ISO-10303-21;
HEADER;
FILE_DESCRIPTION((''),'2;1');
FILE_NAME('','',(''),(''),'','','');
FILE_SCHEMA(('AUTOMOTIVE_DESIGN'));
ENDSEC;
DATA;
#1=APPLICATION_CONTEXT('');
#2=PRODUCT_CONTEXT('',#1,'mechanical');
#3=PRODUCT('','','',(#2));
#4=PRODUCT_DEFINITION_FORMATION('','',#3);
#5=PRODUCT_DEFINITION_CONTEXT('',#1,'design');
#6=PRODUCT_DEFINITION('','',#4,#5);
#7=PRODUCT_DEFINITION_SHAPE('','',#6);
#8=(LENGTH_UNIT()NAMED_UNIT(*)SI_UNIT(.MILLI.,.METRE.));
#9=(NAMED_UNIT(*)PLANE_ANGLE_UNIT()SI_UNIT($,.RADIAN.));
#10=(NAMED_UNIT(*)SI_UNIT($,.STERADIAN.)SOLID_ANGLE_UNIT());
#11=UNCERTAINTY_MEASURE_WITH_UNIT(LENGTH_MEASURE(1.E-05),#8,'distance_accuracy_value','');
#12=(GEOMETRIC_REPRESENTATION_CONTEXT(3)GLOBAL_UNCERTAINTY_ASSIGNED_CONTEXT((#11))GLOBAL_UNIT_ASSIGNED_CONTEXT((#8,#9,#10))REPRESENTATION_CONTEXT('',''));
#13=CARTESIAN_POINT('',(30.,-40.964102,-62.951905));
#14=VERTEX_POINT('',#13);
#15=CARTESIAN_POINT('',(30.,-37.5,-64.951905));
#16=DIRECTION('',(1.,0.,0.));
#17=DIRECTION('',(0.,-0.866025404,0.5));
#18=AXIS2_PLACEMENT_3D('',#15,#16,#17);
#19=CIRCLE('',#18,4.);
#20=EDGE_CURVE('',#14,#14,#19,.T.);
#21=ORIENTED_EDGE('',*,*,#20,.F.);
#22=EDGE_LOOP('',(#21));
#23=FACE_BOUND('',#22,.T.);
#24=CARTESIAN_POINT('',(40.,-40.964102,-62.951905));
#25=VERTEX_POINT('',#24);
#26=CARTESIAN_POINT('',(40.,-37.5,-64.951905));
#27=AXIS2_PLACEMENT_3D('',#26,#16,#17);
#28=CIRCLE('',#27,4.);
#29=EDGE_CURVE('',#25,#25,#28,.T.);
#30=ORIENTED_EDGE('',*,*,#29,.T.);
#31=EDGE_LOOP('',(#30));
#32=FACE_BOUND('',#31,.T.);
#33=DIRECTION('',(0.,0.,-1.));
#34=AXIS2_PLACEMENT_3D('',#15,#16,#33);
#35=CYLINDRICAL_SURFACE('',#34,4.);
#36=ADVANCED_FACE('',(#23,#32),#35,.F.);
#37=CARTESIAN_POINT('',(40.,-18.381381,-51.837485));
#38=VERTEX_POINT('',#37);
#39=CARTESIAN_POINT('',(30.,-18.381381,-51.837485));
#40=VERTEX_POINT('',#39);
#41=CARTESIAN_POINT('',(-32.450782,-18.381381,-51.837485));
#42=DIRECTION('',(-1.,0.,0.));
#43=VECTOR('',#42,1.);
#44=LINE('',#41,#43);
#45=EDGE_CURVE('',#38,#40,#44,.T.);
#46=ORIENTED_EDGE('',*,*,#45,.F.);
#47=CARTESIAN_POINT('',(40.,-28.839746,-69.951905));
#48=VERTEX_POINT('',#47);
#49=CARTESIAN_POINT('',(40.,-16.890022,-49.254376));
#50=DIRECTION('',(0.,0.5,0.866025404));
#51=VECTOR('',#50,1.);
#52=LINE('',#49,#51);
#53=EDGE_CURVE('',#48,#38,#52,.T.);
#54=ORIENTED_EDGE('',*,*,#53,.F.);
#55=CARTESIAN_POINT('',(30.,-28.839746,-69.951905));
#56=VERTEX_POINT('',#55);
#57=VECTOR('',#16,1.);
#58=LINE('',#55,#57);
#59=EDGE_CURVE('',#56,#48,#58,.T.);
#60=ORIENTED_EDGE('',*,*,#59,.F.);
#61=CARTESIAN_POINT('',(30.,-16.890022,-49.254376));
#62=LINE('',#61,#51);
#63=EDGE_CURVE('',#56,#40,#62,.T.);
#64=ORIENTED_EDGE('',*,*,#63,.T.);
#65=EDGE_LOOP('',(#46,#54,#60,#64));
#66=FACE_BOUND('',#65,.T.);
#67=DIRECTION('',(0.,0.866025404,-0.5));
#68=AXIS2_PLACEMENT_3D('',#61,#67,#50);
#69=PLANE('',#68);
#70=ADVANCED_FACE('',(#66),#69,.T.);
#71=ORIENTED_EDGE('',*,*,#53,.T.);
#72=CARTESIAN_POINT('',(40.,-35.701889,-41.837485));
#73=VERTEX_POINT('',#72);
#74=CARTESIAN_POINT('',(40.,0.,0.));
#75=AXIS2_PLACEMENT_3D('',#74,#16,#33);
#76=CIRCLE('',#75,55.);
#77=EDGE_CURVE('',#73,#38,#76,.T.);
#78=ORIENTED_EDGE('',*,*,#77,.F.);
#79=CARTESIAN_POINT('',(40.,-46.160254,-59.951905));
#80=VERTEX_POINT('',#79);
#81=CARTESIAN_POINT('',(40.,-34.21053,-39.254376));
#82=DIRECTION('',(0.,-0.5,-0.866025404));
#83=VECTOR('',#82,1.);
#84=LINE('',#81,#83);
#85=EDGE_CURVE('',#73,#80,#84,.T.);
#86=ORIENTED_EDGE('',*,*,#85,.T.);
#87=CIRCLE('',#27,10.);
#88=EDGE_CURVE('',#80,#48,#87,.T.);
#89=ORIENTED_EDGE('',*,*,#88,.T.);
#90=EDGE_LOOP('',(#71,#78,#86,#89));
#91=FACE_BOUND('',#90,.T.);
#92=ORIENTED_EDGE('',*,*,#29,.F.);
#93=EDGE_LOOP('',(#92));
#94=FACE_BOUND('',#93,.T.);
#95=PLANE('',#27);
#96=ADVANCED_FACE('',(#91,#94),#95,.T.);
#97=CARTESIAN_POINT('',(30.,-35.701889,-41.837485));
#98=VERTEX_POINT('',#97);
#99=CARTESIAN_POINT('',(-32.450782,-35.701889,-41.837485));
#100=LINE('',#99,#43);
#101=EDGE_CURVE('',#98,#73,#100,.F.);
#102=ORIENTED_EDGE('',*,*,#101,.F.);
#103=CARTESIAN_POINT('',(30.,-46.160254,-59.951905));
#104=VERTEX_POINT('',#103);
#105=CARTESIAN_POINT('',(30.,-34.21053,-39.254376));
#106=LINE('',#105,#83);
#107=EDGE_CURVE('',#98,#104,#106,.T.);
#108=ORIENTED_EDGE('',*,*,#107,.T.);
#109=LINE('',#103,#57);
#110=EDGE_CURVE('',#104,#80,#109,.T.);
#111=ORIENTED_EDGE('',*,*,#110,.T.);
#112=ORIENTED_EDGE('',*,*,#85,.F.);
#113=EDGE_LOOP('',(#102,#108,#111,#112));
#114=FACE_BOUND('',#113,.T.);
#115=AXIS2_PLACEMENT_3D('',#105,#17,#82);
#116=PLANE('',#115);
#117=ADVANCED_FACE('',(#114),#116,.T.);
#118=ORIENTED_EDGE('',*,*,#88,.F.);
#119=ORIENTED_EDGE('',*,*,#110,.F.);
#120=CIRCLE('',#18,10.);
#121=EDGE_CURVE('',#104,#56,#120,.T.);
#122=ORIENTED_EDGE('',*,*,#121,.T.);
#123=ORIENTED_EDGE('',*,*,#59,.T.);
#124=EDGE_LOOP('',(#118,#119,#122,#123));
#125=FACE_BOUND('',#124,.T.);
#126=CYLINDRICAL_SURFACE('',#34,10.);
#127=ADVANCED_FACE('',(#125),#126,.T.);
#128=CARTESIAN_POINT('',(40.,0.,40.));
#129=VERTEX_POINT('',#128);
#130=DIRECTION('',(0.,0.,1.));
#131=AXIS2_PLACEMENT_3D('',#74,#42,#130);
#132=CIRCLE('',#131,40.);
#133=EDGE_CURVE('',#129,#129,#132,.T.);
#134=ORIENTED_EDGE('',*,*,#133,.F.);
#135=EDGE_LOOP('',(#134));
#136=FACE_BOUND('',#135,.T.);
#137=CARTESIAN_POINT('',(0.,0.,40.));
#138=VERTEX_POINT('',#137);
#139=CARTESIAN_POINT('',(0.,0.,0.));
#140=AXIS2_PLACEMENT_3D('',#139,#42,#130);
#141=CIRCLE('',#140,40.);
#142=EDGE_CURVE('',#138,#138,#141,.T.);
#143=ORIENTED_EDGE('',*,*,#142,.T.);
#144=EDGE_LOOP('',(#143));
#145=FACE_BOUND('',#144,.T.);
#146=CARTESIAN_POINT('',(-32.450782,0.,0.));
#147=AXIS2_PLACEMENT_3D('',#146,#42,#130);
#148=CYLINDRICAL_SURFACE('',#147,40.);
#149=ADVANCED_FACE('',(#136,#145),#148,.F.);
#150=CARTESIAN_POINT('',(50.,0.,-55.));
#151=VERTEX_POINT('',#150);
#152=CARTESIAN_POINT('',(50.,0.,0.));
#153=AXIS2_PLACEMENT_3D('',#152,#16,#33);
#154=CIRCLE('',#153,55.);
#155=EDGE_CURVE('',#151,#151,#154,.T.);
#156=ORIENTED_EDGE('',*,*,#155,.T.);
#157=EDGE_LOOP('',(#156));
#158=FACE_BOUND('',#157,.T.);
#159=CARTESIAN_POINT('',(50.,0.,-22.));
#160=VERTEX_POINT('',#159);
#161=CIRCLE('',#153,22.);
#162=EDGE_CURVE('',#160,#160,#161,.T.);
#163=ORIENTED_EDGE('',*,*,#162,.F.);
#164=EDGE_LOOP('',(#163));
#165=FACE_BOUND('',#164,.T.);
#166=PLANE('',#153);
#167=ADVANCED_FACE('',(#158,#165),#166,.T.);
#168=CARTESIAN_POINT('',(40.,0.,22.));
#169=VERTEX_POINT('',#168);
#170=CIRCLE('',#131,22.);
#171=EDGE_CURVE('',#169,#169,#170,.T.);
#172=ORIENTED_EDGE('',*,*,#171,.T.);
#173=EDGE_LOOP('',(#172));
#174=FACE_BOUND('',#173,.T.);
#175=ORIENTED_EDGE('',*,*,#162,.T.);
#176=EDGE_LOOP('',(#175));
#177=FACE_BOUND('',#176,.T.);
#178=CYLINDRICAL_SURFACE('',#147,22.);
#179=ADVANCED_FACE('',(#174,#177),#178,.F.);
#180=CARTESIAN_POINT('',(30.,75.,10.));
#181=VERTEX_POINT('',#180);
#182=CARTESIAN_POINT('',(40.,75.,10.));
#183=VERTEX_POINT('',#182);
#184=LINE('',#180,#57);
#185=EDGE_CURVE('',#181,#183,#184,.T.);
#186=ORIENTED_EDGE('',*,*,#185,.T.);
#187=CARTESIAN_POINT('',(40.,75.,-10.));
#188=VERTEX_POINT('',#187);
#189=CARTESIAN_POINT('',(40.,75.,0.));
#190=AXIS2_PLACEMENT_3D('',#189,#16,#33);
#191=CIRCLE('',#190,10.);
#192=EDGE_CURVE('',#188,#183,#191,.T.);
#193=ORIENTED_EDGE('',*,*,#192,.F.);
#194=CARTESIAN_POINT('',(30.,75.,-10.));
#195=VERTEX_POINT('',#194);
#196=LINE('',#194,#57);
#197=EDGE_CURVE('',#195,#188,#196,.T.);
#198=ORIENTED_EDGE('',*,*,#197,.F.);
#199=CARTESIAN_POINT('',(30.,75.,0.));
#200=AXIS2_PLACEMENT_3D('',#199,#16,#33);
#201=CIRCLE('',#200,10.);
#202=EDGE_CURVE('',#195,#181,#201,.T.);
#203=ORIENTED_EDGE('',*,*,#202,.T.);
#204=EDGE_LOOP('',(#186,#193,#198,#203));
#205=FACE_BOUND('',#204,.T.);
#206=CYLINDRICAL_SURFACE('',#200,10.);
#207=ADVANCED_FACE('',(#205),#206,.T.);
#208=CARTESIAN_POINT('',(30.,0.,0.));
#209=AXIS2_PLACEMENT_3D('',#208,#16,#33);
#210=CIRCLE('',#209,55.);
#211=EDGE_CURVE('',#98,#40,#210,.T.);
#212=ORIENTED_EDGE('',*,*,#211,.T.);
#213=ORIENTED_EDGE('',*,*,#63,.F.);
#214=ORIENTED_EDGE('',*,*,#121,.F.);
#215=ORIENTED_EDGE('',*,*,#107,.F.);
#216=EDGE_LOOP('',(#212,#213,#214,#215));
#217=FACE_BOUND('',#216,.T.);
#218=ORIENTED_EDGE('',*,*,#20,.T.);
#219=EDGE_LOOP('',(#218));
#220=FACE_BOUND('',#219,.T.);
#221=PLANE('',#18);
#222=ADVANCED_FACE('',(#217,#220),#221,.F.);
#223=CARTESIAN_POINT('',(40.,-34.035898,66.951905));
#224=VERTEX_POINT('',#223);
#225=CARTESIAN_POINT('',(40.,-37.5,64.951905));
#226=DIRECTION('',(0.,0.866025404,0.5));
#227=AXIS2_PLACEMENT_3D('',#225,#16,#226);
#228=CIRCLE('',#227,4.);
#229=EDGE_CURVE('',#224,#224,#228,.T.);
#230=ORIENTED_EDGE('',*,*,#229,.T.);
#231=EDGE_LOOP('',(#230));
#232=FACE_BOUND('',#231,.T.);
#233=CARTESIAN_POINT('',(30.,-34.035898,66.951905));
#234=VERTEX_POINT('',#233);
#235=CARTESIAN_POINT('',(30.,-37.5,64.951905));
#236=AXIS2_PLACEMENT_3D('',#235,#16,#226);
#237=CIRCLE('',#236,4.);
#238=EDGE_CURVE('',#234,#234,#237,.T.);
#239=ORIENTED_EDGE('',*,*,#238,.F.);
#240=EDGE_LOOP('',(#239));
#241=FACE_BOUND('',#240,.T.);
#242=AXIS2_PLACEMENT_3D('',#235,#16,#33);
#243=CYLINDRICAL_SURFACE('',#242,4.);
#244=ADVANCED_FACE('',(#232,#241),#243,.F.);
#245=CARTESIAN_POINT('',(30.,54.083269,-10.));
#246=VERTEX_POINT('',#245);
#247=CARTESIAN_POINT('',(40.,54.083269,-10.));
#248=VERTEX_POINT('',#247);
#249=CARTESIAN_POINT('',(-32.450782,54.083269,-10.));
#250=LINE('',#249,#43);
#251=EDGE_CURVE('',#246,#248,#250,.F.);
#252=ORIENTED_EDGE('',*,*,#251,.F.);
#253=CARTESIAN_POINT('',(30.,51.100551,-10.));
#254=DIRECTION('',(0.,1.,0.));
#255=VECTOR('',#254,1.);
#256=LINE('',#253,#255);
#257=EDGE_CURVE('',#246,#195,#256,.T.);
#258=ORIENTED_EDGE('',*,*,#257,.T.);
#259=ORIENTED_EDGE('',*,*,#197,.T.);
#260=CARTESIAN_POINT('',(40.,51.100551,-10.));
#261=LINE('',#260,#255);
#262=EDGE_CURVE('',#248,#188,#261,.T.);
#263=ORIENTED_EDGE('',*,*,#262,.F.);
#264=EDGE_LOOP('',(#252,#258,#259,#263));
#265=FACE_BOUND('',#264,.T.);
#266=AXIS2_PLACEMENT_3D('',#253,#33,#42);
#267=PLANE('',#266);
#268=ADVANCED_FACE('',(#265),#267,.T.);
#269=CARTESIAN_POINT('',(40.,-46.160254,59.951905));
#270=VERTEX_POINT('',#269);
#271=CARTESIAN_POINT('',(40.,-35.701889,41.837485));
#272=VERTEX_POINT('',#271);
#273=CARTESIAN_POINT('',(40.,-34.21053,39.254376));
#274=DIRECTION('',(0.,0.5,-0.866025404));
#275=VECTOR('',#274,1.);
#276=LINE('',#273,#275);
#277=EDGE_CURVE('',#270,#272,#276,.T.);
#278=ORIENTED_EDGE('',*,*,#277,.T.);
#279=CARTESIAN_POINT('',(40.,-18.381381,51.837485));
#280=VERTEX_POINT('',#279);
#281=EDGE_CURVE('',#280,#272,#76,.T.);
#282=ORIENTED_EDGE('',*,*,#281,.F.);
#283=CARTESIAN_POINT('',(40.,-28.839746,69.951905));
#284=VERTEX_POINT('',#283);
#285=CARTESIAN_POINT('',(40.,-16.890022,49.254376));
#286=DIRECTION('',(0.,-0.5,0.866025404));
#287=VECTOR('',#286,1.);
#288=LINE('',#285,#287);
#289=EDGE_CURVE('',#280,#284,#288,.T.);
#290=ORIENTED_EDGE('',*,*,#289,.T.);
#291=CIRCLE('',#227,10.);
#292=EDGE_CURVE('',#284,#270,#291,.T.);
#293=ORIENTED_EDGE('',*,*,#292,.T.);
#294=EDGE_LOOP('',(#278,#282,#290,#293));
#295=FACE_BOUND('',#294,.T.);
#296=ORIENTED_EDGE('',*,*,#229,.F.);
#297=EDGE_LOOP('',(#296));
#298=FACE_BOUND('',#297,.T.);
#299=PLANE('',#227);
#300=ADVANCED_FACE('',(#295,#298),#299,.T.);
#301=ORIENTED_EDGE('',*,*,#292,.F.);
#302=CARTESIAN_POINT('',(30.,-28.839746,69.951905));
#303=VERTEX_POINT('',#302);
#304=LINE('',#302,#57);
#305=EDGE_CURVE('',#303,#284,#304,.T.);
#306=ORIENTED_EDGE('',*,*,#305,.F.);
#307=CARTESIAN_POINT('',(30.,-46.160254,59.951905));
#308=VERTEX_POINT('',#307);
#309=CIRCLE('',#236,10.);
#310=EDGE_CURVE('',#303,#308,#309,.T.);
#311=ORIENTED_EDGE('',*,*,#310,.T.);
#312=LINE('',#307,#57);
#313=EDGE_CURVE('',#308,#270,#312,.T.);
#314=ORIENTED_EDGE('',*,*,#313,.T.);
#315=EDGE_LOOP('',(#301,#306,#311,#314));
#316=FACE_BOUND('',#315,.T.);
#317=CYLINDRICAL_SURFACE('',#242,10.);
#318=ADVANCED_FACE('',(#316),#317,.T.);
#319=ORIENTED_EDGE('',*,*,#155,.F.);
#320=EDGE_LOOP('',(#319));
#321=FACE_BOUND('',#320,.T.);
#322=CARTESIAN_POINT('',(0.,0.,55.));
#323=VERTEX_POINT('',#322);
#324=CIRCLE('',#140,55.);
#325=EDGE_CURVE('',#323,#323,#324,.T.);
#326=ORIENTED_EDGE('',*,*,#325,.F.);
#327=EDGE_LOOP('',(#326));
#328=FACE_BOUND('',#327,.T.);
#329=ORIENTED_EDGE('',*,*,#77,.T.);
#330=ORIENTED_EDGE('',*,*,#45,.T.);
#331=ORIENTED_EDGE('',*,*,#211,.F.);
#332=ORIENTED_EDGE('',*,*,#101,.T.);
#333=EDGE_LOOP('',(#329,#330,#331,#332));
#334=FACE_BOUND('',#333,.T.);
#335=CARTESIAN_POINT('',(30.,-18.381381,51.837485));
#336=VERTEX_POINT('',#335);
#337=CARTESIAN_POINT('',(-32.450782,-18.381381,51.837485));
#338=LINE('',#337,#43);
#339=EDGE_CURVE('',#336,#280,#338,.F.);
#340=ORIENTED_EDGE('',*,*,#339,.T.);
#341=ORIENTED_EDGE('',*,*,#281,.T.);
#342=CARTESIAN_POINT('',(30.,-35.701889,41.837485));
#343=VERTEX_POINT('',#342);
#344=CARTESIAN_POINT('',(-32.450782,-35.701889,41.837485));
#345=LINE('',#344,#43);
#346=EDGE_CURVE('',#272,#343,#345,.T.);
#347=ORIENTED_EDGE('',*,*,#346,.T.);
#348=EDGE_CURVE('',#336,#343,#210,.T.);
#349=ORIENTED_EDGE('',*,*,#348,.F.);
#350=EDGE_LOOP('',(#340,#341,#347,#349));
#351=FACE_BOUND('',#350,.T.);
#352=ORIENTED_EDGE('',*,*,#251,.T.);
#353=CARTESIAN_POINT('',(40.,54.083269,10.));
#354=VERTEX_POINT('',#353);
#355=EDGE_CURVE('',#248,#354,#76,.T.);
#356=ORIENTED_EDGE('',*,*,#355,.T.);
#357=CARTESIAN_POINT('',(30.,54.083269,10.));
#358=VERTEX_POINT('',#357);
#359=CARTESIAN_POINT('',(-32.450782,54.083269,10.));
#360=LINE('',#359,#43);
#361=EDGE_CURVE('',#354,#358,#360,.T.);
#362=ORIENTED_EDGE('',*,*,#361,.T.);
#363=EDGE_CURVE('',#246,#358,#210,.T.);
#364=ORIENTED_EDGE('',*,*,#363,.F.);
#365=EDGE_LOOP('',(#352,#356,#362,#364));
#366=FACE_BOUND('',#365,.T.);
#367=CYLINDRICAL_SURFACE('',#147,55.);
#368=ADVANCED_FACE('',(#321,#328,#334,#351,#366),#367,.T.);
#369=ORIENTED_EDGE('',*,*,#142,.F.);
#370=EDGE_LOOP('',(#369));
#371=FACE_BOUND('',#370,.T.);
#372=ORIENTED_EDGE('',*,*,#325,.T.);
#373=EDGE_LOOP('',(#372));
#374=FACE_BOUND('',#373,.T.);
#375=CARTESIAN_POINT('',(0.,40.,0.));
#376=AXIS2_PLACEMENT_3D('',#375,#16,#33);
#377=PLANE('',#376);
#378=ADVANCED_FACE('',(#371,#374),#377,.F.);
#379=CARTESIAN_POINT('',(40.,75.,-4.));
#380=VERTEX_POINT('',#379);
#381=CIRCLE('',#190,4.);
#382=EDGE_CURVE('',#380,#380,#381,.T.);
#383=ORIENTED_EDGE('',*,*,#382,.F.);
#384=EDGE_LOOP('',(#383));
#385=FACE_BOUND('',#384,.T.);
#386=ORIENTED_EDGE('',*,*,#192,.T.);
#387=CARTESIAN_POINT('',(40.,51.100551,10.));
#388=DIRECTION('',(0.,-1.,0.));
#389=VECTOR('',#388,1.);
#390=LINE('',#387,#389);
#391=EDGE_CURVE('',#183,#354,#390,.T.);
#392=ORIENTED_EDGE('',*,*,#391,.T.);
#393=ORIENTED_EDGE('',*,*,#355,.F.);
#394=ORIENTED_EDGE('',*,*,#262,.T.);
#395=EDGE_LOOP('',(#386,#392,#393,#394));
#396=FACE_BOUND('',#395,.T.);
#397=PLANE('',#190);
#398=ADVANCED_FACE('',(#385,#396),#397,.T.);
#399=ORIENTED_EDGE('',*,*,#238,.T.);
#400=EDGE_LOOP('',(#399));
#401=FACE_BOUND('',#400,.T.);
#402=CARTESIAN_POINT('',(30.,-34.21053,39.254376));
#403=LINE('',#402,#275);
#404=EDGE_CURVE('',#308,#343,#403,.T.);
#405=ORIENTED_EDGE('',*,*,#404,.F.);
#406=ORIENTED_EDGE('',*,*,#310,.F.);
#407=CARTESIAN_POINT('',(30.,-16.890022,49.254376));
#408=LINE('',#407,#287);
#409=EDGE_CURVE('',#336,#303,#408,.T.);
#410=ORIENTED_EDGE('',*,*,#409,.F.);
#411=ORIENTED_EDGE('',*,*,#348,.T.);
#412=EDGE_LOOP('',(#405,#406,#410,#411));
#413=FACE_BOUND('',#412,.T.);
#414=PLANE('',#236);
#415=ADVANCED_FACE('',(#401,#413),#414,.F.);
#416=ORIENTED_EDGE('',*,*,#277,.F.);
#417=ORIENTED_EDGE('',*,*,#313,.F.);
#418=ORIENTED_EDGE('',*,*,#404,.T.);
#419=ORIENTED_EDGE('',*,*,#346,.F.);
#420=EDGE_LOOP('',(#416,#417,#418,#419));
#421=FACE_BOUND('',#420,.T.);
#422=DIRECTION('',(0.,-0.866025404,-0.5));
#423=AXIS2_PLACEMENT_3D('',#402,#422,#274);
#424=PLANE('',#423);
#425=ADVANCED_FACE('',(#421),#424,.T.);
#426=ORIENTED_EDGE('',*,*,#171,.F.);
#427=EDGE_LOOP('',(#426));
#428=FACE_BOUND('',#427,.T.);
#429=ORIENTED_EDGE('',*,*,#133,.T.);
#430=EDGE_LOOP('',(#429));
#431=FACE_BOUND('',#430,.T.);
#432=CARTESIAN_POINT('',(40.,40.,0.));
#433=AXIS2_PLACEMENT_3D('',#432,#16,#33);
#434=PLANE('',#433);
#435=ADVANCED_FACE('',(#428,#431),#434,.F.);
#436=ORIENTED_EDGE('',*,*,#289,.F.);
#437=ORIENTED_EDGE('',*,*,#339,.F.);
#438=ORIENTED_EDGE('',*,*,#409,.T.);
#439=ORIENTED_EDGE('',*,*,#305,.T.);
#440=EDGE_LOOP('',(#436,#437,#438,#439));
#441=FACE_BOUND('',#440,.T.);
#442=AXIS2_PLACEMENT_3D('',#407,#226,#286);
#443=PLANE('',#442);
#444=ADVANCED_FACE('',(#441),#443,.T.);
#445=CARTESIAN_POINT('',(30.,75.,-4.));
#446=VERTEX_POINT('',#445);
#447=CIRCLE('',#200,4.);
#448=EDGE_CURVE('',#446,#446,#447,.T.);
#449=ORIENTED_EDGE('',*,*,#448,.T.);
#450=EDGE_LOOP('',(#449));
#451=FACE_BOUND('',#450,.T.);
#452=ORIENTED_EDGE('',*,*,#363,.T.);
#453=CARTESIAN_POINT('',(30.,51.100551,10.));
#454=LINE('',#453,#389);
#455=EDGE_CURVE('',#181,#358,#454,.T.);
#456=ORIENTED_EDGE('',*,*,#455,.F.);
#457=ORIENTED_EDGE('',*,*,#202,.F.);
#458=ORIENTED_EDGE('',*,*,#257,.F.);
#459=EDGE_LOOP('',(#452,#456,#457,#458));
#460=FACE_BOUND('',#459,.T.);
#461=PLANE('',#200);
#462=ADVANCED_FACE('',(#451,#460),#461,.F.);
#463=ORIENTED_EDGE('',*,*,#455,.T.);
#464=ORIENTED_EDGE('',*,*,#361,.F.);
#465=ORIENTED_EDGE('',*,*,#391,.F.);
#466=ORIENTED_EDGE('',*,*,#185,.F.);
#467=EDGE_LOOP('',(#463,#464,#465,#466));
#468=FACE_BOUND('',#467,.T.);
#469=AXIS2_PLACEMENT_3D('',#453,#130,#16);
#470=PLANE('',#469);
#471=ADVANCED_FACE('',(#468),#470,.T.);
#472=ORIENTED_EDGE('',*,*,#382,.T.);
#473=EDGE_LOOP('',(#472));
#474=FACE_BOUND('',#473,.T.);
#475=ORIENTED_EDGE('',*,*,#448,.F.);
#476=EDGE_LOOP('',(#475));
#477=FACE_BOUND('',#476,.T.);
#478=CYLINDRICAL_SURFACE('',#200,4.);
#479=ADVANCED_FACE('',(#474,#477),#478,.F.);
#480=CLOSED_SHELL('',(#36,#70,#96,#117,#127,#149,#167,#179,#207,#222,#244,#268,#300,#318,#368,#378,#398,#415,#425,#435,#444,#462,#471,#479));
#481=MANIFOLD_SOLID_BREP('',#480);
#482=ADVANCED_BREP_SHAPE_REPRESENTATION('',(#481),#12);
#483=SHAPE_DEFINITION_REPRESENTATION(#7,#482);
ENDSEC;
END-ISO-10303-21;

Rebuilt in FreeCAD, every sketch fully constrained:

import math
import FreeCAD as App
import Part
import Sketcher
from FreeCAD import Vector


def add_polygon(sketch, points):
    """Adds a closed chain of lines whose ends are joined by coincident constraints."""
    first, n = sketch.GeometryCount, len(points)
    for a, b in zip(points, points[1:] + points[:1]):
        sketch.addGeometry(Part.LineSegment(App.Vector(*a, 0), App.Vector(*b, 0)), False)
    for i in range(n):
        sketch.addConstraint(Sketcher.Constraint("Coincident", first + i, 2, first + (i + 1) % n, 1))

doc = App.newDocument("Part")
body = doc.addObject("PartDesign::Body", "Body")

# Sketch on XY plane
sketch1 = body.newObject("Sketcher::SketchObject", "Sketch")
sketch1.AttachmentSupport = (doc.getObject("XY_Plane"), [""])
sketch1.MapMode = "FlatFace"
add_polygon(sketch1, [(0, 55), (0, 40), (40, 40), (40, 22), (55, 22), (55, 55)])  # lines 0-5
sketch1.addConstraint([
    Sketcher.Constraint("Vertical", 0),
    Sketcher.Constraint("Horizontal", 1),
    Sketcher.Constraint("Vertical", 2),
    Sketcher.Constraint("Horizontal", 3),
    Sketcher.Constraint("Vertical", 4),
    Sketcher.Constraint("Horizontal", 5),
    Sketcher.Constraint("PointOnObject", 0, 2, -2),
    Sketcher.Constraint("Equal", 3, 0),
    Sketcher.Constraint("DistanceX", 1, 1, 1, 2, 40.0),
    Sketcher.Constraint("DistanceX", 3, 1, 3, 2, 15.0),
    Sketcher.Constraint("DistanceY", 2, 2, 2, 1, 18.0),
    Sketcher.Constraint("DistanceY", -1, 1, 0, 2, 40.0),
])
revolution = body.newObject("PartDesign::Revolution", "Revolution")
revolution.Profile = sketch1
revolution.ReferenceAxis = (sketch1, ["H_Axis"])
revolution.Angle = 360

# Sketch on YZ plane
sketch2 = body.newObject("Sketcher::SketchObject", "Sketch001")
sketch2.AttachmentSupport = (doc.getObject("YZ_Plane"), [""])
sketch2.MapMode = "FlatFace"
sketch2.AttachmentOffset = App.Placement(Vector(0, 0, 40), App.Rotation())
sketch2.addGeometry([
    Part.LineSegment(Vector(51.100551, -10, 0), Vector(75, -10, 0)),  # 0
    Part.ArcOfCircle(Part.Circle(Vector(75, 0, 0), Vector(0, 0, 1), 10), math.radians(-90), math.radians(90)),  # 1
    Part.LineSegment(Vector(75, 10, 0), Vector(51.100551, 10, 0)),  # 2
    Part.LineSegment(Vector(51.100551, 10, 0), Vector(51.100551, -10, 0)),  # 3
    Part.Circle(Vector(75, 0, 0), Vector(0, 0, 1), 4),  # 4
], False)
sketch2.addConstraint([
    Sketcher.Constraint("Tangent", 0, 2, 1, 1),
    Sketcher.Constraint("Tangent", 1, 2, 2, 1),
    Sketcher.Constraint("Coincident", 2, 2, 3, 1),
    Sketcher.Constraint("Coincident", 3, 2, 0, 1),
    Sketcher.Constraint("Horizontal", 0),
    Sketcher.Constraint("Horizontal", 2),
    Sketcher.Constraint("Vertical", 3),
    Sketcher.Constraint("Coincident", 4, 3, 1, 3),
    Sketcher.Constraint("PointOnObject", 1, 3, -1),
    Sketcher.Constraint("Diameter", 4, 8.0),
    Sketcher.Constraint("Radius", 1, 10.0),
    Sketcher.Constraint("DistanceX", -1, 1, 1, 3, 75.0),
    Sketcher.Constraint("DistanceX", 0, 1, 0, 2, 23.899449),
])
pad1 = body.newObject("PartDesign::Pad", "Pad")
pad1.Profile = sketch2
pad1.Length = 10
pad1.Reversed = True
doc.recompute()

polarpattern = body.newObject("PartDesign::PolarPattern", "PolarPattern")
polarpattern.Originals = [pad1]
polarpattern.Axis = (doc.getObject("X_Axis"), [""])
polarpattern.Angle = 360
polarpattern.Occurrences = 3
body.Tip = polarpattern

# Sketch on YZ plane
sketch3 = body.newObject("Sketcher::SketchObject", "Sketch002")
sketch3.AttachmentSupport = (doc.getObject("YZ_Plane"), [""])
sketch3.MapMode = "FlatFace"
sketch3.AttachmentOffset = App.Placement(Vector(0, 0, 55), App.Rotation())
sketch3.addGeometry([
    Part.Circle(Vector(0, 0, 0), Vector(0, 0, 1), 55),
    Part.Circle(Vector(0, 0, 0), Vector(0, 0, 1), 22),
], False)
sketch3.addConstraint([
    Sketcher.Constraint("Coincident", 0, 3, -1, 1),
    Sketcher.Constraint("Coincident", 1, 3, -1, 1),
    Sketcher.Constraint("Diameter", 0, 110.0),
    Sketcher.Constraint("Diameter", 1, 44.0),
])
pocket1 = body.newObject("PartDesign::Pocket", "Pocket")
pocket1.Profile = sketch3
pocket1.Length = 5

doc.recompute()
